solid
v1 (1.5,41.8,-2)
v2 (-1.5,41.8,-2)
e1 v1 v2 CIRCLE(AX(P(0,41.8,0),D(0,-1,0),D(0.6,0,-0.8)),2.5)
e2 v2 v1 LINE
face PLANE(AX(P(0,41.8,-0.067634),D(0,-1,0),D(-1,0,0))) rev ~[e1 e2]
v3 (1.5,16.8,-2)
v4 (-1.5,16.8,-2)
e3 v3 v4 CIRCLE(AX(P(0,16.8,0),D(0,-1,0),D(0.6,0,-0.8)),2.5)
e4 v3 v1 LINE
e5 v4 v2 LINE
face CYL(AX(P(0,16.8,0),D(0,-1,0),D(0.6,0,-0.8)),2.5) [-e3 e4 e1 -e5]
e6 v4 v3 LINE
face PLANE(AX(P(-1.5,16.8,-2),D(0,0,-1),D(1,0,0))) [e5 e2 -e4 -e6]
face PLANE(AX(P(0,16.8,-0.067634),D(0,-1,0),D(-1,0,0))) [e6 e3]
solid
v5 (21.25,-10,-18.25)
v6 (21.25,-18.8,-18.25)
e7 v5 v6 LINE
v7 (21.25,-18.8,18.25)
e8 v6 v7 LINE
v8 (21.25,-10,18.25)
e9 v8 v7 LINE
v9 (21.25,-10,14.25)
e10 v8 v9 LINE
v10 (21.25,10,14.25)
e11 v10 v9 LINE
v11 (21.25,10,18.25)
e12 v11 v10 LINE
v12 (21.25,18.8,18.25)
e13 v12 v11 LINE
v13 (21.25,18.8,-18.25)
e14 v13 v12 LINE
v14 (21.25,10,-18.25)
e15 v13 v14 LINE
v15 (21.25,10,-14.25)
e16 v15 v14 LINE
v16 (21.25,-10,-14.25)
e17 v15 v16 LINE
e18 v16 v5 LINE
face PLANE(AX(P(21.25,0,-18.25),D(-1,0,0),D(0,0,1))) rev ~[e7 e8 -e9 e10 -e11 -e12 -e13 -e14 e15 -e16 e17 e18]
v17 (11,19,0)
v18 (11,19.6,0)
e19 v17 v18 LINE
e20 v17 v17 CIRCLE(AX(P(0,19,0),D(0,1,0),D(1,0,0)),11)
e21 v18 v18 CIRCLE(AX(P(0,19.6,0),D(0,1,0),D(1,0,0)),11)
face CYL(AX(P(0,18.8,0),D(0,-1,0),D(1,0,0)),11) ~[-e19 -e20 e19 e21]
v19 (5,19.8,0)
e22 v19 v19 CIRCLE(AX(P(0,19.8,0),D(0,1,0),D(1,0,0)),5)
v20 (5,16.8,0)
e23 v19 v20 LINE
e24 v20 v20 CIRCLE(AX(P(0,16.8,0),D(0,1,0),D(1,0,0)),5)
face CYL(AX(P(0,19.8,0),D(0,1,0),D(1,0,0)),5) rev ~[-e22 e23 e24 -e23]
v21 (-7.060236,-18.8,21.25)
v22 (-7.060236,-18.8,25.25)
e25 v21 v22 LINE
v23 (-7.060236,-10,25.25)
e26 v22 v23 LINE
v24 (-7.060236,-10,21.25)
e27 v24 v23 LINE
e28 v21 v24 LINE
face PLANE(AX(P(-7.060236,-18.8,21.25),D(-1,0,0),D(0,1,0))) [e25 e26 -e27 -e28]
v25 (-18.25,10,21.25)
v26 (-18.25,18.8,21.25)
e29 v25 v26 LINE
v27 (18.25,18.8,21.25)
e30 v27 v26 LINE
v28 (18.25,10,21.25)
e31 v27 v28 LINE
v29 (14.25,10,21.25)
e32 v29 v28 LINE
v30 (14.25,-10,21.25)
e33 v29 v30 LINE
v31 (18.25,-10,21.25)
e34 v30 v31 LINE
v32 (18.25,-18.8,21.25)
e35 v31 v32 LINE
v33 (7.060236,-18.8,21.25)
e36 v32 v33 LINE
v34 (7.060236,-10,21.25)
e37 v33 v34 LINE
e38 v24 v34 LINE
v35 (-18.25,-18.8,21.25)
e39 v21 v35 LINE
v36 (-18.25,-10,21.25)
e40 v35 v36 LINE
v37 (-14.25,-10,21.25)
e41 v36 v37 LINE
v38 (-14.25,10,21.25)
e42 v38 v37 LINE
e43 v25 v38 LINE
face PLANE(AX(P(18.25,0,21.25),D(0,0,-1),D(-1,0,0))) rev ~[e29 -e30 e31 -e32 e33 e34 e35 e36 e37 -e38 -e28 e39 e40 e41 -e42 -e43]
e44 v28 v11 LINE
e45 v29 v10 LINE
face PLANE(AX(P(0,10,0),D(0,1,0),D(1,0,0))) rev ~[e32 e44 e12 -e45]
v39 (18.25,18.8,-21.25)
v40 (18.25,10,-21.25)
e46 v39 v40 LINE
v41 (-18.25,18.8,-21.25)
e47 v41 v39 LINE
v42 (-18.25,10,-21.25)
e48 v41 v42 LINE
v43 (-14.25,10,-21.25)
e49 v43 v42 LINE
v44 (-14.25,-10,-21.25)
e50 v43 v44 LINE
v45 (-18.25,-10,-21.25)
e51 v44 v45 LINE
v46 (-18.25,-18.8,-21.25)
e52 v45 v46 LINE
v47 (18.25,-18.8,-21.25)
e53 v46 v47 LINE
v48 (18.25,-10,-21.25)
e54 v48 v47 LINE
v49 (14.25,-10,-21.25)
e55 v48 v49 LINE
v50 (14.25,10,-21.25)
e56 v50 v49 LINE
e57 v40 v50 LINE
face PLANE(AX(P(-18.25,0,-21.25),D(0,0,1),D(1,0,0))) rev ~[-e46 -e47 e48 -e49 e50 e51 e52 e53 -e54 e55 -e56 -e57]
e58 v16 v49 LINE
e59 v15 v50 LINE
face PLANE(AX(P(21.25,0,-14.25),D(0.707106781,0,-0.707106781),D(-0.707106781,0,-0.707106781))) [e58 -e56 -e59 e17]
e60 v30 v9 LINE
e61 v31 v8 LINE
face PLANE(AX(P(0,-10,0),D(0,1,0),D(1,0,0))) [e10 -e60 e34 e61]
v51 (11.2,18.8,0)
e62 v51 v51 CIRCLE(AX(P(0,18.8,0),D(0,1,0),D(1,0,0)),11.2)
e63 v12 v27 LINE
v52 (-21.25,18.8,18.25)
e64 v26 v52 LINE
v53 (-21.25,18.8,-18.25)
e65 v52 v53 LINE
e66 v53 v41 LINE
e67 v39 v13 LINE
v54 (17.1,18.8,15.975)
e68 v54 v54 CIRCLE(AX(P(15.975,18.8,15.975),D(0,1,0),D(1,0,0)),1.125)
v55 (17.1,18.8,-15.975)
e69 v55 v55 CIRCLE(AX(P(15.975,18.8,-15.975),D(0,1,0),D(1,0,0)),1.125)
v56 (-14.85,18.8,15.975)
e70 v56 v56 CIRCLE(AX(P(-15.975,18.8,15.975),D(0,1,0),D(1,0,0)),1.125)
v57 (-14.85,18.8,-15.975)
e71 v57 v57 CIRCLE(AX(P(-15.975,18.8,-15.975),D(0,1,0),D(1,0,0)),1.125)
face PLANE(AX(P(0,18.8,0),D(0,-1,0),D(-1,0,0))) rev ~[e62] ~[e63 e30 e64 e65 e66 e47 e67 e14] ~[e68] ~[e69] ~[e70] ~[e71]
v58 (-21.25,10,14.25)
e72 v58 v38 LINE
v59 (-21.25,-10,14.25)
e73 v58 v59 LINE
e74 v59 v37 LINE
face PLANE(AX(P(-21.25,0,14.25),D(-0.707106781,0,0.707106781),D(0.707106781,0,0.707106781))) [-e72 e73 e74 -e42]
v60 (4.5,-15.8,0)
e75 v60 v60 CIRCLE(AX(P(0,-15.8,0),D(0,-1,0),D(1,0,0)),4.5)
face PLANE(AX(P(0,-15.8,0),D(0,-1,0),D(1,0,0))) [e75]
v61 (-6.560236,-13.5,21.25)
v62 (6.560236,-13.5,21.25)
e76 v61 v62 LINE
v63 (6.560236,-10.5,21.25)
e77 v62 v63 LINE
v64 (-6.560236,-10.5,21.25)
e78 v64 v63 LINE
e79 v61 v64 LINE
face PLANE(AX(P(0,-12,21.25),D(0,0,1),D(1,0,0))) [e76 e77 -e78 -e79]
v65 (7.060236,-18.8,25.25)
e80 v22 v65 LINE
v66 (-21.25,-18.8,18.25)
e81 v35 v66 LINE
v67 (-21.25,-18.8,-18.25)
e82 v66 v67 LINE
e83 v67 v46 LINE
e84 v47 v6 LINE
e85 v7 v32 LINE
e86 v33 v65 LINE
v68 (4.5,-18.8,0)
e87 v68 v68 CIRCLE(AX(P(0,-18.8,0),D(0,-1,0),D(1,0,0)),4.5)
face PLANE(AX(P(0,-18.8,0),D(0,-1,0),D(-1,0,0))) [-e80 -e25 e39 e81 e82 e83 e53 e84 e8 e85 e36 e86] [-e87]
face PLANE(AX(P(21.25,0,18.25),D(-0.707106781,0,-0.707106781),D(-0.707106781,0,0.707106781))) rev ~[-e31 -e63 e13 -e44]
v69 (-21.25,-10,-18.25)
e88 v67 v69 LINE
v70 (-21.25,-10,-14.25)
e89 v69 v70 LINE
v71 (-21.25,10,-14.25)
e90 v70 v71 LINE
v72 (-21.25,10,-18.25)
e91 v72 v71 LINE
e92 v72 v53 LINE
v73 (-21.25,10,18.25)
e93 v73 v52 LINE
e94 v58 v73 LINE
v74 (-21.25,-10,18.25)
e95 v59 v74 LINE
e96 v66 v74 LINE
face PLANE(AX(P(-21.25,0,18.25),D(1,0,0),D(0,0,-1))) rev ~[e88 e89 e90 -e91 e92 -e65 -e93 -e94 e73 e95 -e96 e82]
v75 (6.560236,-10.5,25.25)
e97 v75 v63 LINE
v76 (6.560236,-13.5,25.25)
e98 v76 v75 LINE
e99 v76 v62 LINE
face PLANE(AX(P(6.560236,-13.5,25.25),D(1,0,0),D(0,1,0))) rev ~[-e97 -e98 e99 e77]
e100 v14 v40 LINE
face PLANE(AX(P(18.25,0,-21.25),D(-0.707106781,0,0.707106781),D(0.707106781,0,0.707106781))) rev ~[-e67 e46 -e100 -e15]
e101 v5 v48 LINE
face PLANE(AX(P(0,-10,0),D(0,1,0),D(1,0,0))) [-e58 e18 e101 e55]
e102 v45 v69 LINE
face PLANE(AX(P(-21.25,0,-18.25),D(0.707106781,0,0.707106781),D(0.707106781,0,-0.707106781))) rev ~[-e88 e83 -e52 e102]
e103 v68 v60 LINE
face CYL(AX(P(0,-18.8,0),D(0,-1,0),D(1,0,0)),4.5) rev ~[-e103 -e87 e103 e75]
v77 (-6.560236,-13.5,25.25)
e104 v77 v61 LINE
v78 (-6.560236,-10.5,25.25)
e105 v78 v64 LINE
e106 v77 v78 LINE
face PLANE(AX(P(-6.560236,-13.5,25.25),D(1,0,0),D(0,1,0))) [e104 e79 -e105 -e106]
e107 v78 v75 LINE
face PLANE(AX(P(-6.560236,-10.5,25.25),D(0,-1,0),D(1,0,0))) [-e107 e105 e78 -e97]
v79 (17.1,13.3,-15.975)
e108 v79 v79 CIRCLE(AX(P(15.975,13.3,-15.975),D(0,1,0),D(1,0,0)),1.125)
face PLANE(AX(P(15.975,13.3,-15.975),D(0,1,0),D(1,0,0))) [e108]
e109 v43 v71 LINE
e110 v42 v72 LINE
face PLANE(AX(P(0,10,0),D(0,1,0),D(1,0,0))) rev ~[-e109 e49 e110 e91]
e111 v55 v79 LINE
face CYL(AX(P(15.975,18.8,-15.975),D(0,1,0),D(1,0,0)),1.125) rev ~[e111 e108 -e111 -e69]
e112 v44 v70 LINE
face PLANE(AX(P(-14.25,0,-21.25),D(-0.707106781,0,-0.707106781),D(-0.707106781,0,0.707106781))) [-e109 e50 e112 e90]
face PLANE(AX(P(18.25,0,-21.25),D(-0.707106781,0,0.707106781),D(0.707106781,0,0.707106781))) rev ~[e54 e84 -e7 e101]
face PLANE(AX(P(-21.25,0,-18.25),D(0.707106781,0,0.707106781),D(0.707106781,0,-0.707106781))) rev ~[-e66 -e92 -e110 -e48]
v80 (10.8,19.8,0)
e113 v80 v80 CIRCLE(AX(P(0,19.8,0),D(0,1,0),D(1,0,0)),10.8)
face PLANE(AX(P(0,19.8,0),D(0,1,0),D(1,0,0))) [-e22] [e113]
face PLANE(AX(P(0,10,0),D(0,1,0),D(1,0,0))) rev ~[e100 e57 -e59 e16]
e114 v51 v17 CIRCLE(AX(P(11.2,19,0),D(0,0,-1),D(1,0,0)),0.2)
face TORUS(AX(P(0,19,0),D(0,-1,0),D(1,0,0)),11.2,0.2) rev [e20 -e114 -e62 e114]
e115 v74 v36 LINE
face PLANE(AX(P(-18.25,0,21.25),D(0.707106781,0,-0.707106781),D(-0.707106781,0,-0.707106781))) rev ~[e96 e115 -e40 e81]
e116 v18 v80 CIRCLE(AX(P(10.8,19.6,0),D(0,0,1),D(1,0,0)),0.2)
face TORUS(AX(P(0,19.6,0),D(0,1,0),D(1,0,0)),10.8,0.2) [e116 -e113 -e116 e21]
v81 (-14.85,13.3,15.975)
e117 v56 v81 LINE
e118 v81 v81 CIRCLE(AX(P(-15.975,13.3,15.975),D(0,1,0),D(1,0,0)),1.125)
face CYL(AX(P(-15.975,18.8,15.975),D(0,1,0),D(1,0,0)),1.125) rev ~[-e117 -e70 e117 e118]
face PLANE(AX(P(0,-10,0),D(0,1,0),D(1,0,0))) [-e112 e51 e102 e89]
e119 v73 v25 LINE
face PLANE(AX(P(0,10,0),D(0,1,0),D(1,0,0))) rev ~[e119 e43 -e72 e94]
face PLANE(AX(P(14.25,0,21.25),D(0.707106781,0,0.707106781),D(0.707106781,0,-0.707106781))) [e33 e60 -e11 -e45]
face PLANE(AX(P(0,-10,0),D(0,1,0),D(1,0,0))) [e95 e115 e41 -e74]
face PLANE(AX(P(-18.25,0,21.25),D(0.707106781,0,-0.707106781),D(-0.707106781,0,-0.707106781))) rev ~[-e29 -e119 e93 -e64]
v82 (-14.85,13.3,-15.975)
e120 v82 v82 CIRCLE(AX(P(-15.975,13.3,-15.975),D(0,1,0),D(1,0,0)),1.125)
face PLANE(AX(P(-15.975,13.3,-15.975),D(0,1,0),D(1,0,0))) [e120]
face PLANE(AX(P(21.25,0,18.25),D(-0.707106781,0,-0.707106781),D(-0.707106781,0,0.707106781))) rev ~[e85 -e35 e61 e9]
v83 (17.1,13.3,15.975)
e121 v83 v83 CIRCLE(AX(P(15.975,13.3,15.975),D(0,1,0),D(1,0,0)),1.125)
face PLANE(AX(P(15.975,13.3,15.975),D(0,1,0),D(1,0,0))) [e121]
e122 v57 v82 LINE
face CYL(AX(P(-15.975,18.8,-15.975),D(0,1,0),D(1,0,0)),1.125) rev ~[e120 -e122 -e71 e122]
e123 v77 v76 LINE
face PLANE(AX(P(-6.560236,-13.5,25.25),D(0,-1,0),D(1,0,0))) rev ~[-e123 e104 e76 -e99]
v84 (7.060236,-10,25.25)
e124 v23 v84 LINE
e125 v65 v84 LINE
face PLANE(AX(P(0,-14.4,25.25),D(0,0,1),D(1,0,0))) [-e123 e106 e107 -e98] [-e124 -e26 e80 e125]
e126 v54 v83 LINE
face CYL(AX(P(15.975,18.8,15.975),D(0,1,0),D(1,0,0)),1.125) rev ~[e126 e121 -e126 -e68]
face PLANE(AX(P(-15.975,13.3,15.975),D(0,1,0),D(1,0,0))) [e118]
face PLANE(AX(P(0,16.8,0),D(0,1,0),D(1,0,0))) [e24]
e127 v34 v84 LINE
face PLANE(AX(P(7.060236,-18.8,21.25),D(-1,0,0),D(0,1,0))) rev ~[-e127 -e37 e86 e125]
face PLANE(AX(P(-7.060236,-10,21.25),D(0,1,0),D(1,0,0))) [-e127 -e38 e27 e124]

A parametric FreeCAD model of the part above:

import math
import FreeCAD as App
import Part
import Sketcher
from FreeCAD import Vector


def edges_at(feature, points):
    """Names of the edges that pass closest to the given points."""
    edges = feature.Shape.Edges
    near = lambda p: min(range(len(edges)), key=lambda i: edges[i].distToShape(Part.Vertex(*p))[0])
    return sorted({f"Edge{near(p) + 1}" for p in points})

doc = App.newDocument("Part")
body = doc.addObject("PartDesign::Body", "Body")

sketch1 = doc.addObject("Sketcher::SketchObject", "Sketch")
body.addObject(sketch1)
sketch1.AttachmentSupport = (doc.XZ_Plane, [""])
sketch1.MapMode = "FlatFace"
sketch1.addGeometry([
    Part.LineSegment(Vector(-18.25, -21.25, 0), Vector(-21.25, -18.25, 0)),
    Part.LineSegment(Vector(-21.25, -18.25, 0), Vector(-21.25, 18.25, 0)),
    Part.LineSegment(Vector(-21.25, 18.25, 0), Vector(-18.25, 21.25, 0)),
    Part.LineSegment(Vector(-18.25, 21.25, 0), Vector(18.25, 21.25, 0)),
    Part.LineSegment(Vector(18.25, 21.25, 0), Vector(21.25, 18.25, 0)),
    Part.LineSegment(Vector(21.25, 18.25, 0), Vector(21.25, -18.25, 0)),
    Part.LineSegment(Vector(21.25, -18.25, 0), Vector(18.25, -21.25, 0)),
    Part.LineSegment(Vector(18.25, -21.25, 0), Vector(-18.25, -21.25, 0)),
], False)
sketch1.addConstraint([
    Sketcher.Constraint("Coincident", 0, 2, 1, 1),
    Sketcher.Constraint("Coincident", 1, 2, 2, 1),
    Sketcher.Constraint("Coincident", 2, 2, 3, 1),
    Sketcher.Constraint("Coincident", 3, 2, 4, 1),
    Sketcher.Constraint("Coincident", 4, 2, 5, 1),
    Sketcher.Constraint("Coincident", 5, 2, 6, 1),
    Sketcher.Constraint("Coincident", 6, 2, 7, 1),
    Sketcher.Constraint("Coincident", 7, 2, 0, 1),
    Sketcher.Constraint("Vertical", 1),
    Sketcher.Constraint("Horizontal", 3),
    Sketcher.Constraint("Vertical", 5),
    Sketcher.Constraint("Horizontal", 7),
    Sketcher.Constraint("Symmetric", 0, 2, 4, 2, -1, 1),
    Sketcher.Constraint("Symmetric", 2, 2, 6, 2, -1, 1),
    Sketcher.Constraint("Perpendicular", 0, 2),
    Sketcher.Constraint("Perpendicular", 2, 4),
    Sketcher.Constraint("Perpendicular", 4, 6),
    Sketcher.Constraint("Horizontal", 1, 2, 4, 2),
    Sketcher.Constraint("Vertical", 3, 2, 6, 2),
    Sketcher.Constraint("Equal", 7, 1),
    Sketcher.Constraint("DistanceX", 3, 1, 3, 2, 36.5),
    Sketcher.Constraint("DistanceX", 1, 2, 2, 2, 3.0),
])
pad1 = doc.addObject("PartDesign::Pad", "Pad")
body.addObject(pad1)
pad1.Profile = sketch1
pad1.Length = 37.6
pad1.Midplane = True

sketch2 = doc.addObject("Sketcher::SketchObject", "Sketch001")
body.addObject(sketch2)
sketch2.AttachmentSupport = (doc.XZ_Plane, [""])
sketch2.MapMode = "FlatFace"
sketch2.addGeometry([
    Part.LineSegment(Vector(-29.34, -29.34, 0), Vector(-29.34, 29.34, 0)),
    Part.LineSegment(Vector(-29.34, 29.34, 0), Vector(29.34, 29.34, 0)),
    Part.LineSegment(Vector(29.34, 29.34, 0), Vector(29.34, -29.34, 0)),
    Part.LineSegment(Vector(29.34, -29.34, 0), Vector(-29.34, -29.34, 0)),
    Part.LineSegment(Vector(-21.25, 14.25, 0), Vector(-21.25, -14.25, 0)),
    Part.LineSegment(Vector(-21.25, -14.25, 0), Vector(-14.25, -21.25, 0)),
    Part.LineSegment(Vector(-14.25, -21.25, 0), Vector(14.25, -21.25, 0)),
    Part.LineSegment(Vector(14.25, -21.25, 0), Vector(21.25, -14.25, 0)),
    Part.LineSegment(Vector(21.25, -14.25, 0), Vector(21.25, 14.25, 0)),
    Part.LineSegment(Vector(21.25, 14.25, 0), Vector(14.25, 21.25, 0)),
    Part.LineSegment(Vector(14.25, 21.25, 0), Vector(-14.25, 21.25, 0)),
    Part.LineSegment(Vector(-14.25, 21.25, 0), Vector(-21.25, 14.25, 0)),
], False)
sketch2.addConstraint([
    Sketcher.Constraint("Coincident", 0, 2, 1, 1),
    Sketcher.Constraint("Coincident", 1, 2, 2, 1),
    Sketcher.Constraint("Coincident", 2, 2, 3, 1),
    Sketcher.Constraint("Coincident", 3, 2, 0, 1),
    Sketcher.Constraint("Coincident", 4, 2, 5, 1),
    Sketcher.Constraint("Coincident", 5, 2, 6, 1),
    Sketcher.Constraint("Coincident", 6, 2, 7, 1),
    Sketcher.Constraint("Coincident", 7, 2, 8, 1),
    Sketcher.Constraint("Coincident", 8, 2, 9, 1),
    Sketcher.Constraint("Coincident", 9, 2, 10, 1),
    Sketcher.Constraint("Coincident", 10, 2, 11, 1),
    Sketcher.Constraint("Coincident", 11, 2, 4, 1),
    Sketcher.Constraint("Vertical", 0),
    Sketcher.Constraint("Horizontal", 1),
    Sketcher.Constraint("Vertical", 2),
    Sketcher.Constraint("Horizontal", 3),
    Sketcher.Constraint("Vertical", 4),
    Sketcher.Constraint("Horizontal", 6),
    Sketcher.Constraint("Vertical", 8),
    Sketcher.Constraint("Horizontal", 10),
    Sketcher.Constraint("Symmetric", 0, 2, 2, 2, -1, 1),
    Sketcher.Constraint("Symmetric", 4, 2, 8, 2, -1, 1),
    Sketcher.Constraint("Symmetric", 5, 2, 9, 2, -1, 1),
    Sketcher.Constraint("Perpendicular", 5, 7),
    Sketcher.Constraint("Perpendicular", 9, 11),
    Sketcher.Constraint("Horizontal", 4, 2, 7, 2),
    Sketcher.Constraint("Horizontal", 8, 2, 11, 2),
    Sketcher.Constraint("Vertical", 6, 2, 9, 2),
    Sketcher.Constraint("Equal", 3, 0),
    Sketcher.Constraint("Equal", 10, 4),
    Sketcher.Constraint("DistanceX", 6, 1, 6, 2, 28.5),
    Sketcher.Constraint("DistanceX", 4, 2, 5, 2, 7.0),
    Sketcher.Constraint("DistanceX", 1, 1, 1, 2, 58.68),
])
pocket1 = doc.addObject("PartDesign::Pocket", "Pocket")
body.addObject(pocket1)
pocket1.Profile = sketch2
pocket1.Length = 20
pocket1.Midplane = True

sketch3 = doc.addObject("Sketcher::SketchObject", "Sketch002")
body.addObject(sketch3)
sketch3.AttachmentSupport = (doc.XY_Plane, [""])
sketch3.MapMode = "FlatFace"
sketch3.AttachmentOffset = App.Placement(Vector(0, 0, 21.25), App.Rotation())
sketch3.addGeometry([
    Part.LineSegment(Vector(-7.060236, -10, 0), Vector(-7.060236, -18.8, 0)),
    Part.LineSegment(Vector(-7.060236, -18.8, 0), Vector(7.060236, -18.8, 0)),
    Part.LineSegment(Vector(7.060236, -18.8, 0), Vector(7.060236, -10, 0)),
    Part.LineSegment(Vector(7.060236, -10, 0), Vector(-7.060236, -10, 0)),
], False)
sketch3.addConstraint([
    Sketcher.Constraint("Coincident", 0, 2, 1, 1),
    Sketcher.Constraint("Coincident", 1, 2, 2, 1),
    Sketcher.Constraint("Coincident", 2, 2, 3, 1),
    Sketcher.Constraint("Coincident", 3, 2, 0, 1),
    Sketcher.Constraint("Vertical", 0),
    Sketcher.Constraint("Horizontal", 1),
    Sketcher.Constraint("Vertical", 2),
    Sketcher.Constraint("Horizontal", 3),
    Sketcher.Constraint("DistanceY", 0, 2, 0, 1, 8.8),
    Sketcher.Constraint("DistanceY", 2, 2, -1, 1, 10.0),
    Sketcher.Constraint("DistanceX", 1, 1, 1, 2, 14.120473),
    Sketcher.Constraint("DistanceX", 0, 2, -1, 1, 7.060236),
])
pad2 = doc.addObject("PartDesign::Pad", "Pad001")
body.addObject(pad2)
pad2.Profile = sketch3
pad2.Length = 4

sketch4 = doc.addObject("Sketcher::SketchObject", "Sketch003")
body.addObject(sketch4)
sketch4.AttachmentSupport = (doc.XY_Plane, [""])
sketch4.MapMode = "FlatFace"
sketch4.AttachmentOffset = App.Placement(Vector(0, 0, 25.25), App.Rotation())
sketch4.addGeometry([
    Part.LineSegment(Vector(-6.560236, -10.5, 0), Vector(-6.560236, -13.5, 0)),
    Part.LineSegment(Vector(-6.560236, -13.5, 0), Vector(6.560236, -13.5, 0)),
    Part.LineSegment(Vector(6.560236, -13.5, 0), Vector(6.560236, -10.5, 0)),
    Part.LineSegment(Vector(6.560236, -10.5, 0), Vector(-6.560236, -10.5, 0)),
], False)
sketch4.addConstraint([
    Sketcher.Constraint("Coincident", 0, 2, 1, 1),
    Sketcher.Constraint("Coincident", 1, 2, 2, 1),
    Sketcher.Constraint("Coincident", 2, 2, 3, 1),
    Sketcher.Constraint("Coincident", 3, 2, 0, 1),
    Sketcher.Constraint("Vertical", 0),
    Sketcher.Constraint("Horizontal", 1),
    Sketcher.Constraint("Vertical", 2),
    Sketcher.Constraint("Horizontal", 3),
    Sketcher.Constraint("DistanceY", 0, 2, 0, 1, 3.0),
    Sketcher.Constraint("DistanceY", 0, 2, -1, 1, 13.5),
    Sketcher.Constraint("DistanceX", 1, 1, 1, 2, 13.120473),
    Sketcher.Constraint("DistanceX", 0, 2, -1, 1, 6.560236),
])
pocket2 = doc.addObject("PartDesign::Pocket", "Pocket001")
body.addObject(pocket2)
pocket2.Profile = sketch4
pocket2.Length = 4

sketch5 = doc.addObject("Sketcher::SketchObject", "Sketch004")
body.addObject(sketch5)
sketch5.AttachmentSupport = (doc.XZ_Plane, [""])
sketch5.MapMode = "FlatFace"
sketch5.AttachmentOffset = App.Placement(Vector(0, 0, 18.8), App.Rotation())
sketch5.addGeometry(Part.Circle(Vector(0, 0, 0), Vector(0, 0, 1), 4.5), False)
sketch5.addConstraint([
    Sketcher.Constraint("Coincident", 0, 3, -1, 1),
    Sketcher.Constraint("Diameter", 0, 9.0),
])
pocket3 = doc.addObject("PartDesign::Pocket", "Pocket002")
body.addObject(pocket3)
pocket3.Profile = sketch5
pocket3.Length = 3

sketch6 = doc.addObject("Sketcher::SketchObject", "Sketch005")
body.addObject(sketch6)
sketch6.AttachmentSupport = (doc.XZ_Plane, [""])
sketch6.MapMode = "FlatFace"
sketch6.AttachmentOffset = App.Placement(Vector(0, 0, -18.8), App.Rotation())
sketch6.addGeometry(Part.Circle(Vector(0, 0, 0), Vector(0, 0, 1), 11), False)
sketch6.addConstraint([
    Sketcher.Constraint("Coincident", 0, 3, -1, 1),
    Sketcher.Constraint("Diameter", 0, 22.0),
])
pad3 = doc.addObject("PartDesign::Pad", "Pad002")
body.addObject(pad3)
pad3.Profile = sketch6
pad3.Length = 1
pad3.Reversed = True
doc.recompute()

fillet = doc.addObject("PartDesign::Fillet", "Fillet")
body.addObject(fillet)
fillet.Base = (pad3, edges_at(pad3, [(-11, 18.8, 0), (-11, 19.8, 0)]))
fillet.Radius = 0.2

sketch7 = doc.addObject("Sketcher::SketchObject", "Sketch006")
body.addObject(sketch7)
sketch7.AttachmentSupport = (doc.XZ_Plane, [""])
sketch7.MapMode = "FlatFace"
sketch7.AttachmentOffset = App.Placement(Vector(0, 0, -19.8), App.Rotation())
sketch7.addGeometry(Part.Circle(Vector(0, 0, 0), Vector(0, 0, 1), 5), False)
sketch7.addConstraint([
    Sketcher.Constraint("Coincident", 0, 3, -1, 1),
    Sketcher.Constraint("Diameter", 0, 10.0),
])
pocket4 = doc.addObject("PartDesign::Pocket", "Pocket003")
body.addObject(pocket4)
pocket4.Profile = sketch7
pocket4.Length = 3
pocket4.Reversed = True

sketch8 = doc.addObject("Sketcher::SketchObject", "Sketch007")
body.addObject(sketch8)
sketch8.AttachmentSupport = (doc.XZ_Plane, [""])
sketch8.MapMode = "FlatFace"
sketch8.AttachmentOffset = App.Placement(Vector(0, 0, -18.8), App.Rotation())
sketch8.addGeometry([
    Part.Circle(Vector(-15.975, -15.975, 0), Vector(0, 0, 1), 1.125),
    Part.Circle(Vector(15.975, -15.975, 0), Vector(0, 0, 1), 1.125),
    Part.Circle(Vector(15.975, 15.975, 0), Vector(0, 0, 1), 1.125),
    Part.Circle(Vector(-15.975, 15.975, 0), Vector(0, 0, 1), 1.125),
], False)
sketch8.addConstraint([
    Sketcher.Constraint("Equal", 0, 1),
    Sketcher.Constraint("Equal", 1, 2),
    Sketcher.Constraint("Equal", 2, 3),
    Sketcher.Constraint("Symmetric", 0, 3, 2, 3, -1, 1),
    Sketcher.Constraint("Symmetric", 1, 3, 3, 3, -1, 1),
    Sketcher.Constraint("Symmetric", 0, 3, 1, 3, -2),
    Sketcher.Constraint("Diameter", 0, 2.25),
    Sketcher.Constraint("DistanceX", 0, 3, 1, 3, 31.95),
    Sketcher.Constraint("DistanceY", 1, 3, 2, 3, 31.95),
])
pocket5 = doc.addObject("PartDesign::Pocket", "Pocket004")
body.addObject(pocket5)
pocket5.Profile = sketch8
pocket5.Length = 5.5
pocket5.Reversed = True
body2 = doc.addObject("PartDesign::Body", "Body001")

sketch9 = doc.addObject("Sketcher::SketchObject", "Sketch008")
body2.addObject(sketch9)
sketch9.AttachmentSupport = (doc.getObject("XZ_Plane001"), [""])
sketch9.MapMode = "FlatFace"
sketch9.AttachmentOffset = App.Placement(Vector(0, 0, -16.8), App.Rotation())
sketch9.addGeometry([
    Part.LineSegment(Vector(1.5, -2, 0), Vector(-1.5, -2, 0)),
    Part.ArcOfCircle(Part.Circle(Vector(0, 0, 0), Vector(0, 0, 1), 2.5), math.radians(-53.130102), math.radians(233.130102)),
], False)
sketch9.addConstraint([
    Sketcher.Constraint("Coincident", 0, 1, 1, 1),
    Sketcher.Constraint("Coincident", 1, 2, 0, 2),
    Sketcher.Constraint("Horizontal", 0),
    Sketcher.Constraint("Coincident", 1, 3, -1, 1),
    Sketcher.Constraint("Radius", 1, 2.5),
    Sketcher.Constraint("DistanceX", 0, 2, 0, 1, 3.0),
])
pad4 = doc.addObject("PartDesign::Pad", "Pad003")
body2.addObject(pad4)
pad4.Profile = sketch9
pad4.Length = 25
pad4.Reversed = True

doc.recompute()
